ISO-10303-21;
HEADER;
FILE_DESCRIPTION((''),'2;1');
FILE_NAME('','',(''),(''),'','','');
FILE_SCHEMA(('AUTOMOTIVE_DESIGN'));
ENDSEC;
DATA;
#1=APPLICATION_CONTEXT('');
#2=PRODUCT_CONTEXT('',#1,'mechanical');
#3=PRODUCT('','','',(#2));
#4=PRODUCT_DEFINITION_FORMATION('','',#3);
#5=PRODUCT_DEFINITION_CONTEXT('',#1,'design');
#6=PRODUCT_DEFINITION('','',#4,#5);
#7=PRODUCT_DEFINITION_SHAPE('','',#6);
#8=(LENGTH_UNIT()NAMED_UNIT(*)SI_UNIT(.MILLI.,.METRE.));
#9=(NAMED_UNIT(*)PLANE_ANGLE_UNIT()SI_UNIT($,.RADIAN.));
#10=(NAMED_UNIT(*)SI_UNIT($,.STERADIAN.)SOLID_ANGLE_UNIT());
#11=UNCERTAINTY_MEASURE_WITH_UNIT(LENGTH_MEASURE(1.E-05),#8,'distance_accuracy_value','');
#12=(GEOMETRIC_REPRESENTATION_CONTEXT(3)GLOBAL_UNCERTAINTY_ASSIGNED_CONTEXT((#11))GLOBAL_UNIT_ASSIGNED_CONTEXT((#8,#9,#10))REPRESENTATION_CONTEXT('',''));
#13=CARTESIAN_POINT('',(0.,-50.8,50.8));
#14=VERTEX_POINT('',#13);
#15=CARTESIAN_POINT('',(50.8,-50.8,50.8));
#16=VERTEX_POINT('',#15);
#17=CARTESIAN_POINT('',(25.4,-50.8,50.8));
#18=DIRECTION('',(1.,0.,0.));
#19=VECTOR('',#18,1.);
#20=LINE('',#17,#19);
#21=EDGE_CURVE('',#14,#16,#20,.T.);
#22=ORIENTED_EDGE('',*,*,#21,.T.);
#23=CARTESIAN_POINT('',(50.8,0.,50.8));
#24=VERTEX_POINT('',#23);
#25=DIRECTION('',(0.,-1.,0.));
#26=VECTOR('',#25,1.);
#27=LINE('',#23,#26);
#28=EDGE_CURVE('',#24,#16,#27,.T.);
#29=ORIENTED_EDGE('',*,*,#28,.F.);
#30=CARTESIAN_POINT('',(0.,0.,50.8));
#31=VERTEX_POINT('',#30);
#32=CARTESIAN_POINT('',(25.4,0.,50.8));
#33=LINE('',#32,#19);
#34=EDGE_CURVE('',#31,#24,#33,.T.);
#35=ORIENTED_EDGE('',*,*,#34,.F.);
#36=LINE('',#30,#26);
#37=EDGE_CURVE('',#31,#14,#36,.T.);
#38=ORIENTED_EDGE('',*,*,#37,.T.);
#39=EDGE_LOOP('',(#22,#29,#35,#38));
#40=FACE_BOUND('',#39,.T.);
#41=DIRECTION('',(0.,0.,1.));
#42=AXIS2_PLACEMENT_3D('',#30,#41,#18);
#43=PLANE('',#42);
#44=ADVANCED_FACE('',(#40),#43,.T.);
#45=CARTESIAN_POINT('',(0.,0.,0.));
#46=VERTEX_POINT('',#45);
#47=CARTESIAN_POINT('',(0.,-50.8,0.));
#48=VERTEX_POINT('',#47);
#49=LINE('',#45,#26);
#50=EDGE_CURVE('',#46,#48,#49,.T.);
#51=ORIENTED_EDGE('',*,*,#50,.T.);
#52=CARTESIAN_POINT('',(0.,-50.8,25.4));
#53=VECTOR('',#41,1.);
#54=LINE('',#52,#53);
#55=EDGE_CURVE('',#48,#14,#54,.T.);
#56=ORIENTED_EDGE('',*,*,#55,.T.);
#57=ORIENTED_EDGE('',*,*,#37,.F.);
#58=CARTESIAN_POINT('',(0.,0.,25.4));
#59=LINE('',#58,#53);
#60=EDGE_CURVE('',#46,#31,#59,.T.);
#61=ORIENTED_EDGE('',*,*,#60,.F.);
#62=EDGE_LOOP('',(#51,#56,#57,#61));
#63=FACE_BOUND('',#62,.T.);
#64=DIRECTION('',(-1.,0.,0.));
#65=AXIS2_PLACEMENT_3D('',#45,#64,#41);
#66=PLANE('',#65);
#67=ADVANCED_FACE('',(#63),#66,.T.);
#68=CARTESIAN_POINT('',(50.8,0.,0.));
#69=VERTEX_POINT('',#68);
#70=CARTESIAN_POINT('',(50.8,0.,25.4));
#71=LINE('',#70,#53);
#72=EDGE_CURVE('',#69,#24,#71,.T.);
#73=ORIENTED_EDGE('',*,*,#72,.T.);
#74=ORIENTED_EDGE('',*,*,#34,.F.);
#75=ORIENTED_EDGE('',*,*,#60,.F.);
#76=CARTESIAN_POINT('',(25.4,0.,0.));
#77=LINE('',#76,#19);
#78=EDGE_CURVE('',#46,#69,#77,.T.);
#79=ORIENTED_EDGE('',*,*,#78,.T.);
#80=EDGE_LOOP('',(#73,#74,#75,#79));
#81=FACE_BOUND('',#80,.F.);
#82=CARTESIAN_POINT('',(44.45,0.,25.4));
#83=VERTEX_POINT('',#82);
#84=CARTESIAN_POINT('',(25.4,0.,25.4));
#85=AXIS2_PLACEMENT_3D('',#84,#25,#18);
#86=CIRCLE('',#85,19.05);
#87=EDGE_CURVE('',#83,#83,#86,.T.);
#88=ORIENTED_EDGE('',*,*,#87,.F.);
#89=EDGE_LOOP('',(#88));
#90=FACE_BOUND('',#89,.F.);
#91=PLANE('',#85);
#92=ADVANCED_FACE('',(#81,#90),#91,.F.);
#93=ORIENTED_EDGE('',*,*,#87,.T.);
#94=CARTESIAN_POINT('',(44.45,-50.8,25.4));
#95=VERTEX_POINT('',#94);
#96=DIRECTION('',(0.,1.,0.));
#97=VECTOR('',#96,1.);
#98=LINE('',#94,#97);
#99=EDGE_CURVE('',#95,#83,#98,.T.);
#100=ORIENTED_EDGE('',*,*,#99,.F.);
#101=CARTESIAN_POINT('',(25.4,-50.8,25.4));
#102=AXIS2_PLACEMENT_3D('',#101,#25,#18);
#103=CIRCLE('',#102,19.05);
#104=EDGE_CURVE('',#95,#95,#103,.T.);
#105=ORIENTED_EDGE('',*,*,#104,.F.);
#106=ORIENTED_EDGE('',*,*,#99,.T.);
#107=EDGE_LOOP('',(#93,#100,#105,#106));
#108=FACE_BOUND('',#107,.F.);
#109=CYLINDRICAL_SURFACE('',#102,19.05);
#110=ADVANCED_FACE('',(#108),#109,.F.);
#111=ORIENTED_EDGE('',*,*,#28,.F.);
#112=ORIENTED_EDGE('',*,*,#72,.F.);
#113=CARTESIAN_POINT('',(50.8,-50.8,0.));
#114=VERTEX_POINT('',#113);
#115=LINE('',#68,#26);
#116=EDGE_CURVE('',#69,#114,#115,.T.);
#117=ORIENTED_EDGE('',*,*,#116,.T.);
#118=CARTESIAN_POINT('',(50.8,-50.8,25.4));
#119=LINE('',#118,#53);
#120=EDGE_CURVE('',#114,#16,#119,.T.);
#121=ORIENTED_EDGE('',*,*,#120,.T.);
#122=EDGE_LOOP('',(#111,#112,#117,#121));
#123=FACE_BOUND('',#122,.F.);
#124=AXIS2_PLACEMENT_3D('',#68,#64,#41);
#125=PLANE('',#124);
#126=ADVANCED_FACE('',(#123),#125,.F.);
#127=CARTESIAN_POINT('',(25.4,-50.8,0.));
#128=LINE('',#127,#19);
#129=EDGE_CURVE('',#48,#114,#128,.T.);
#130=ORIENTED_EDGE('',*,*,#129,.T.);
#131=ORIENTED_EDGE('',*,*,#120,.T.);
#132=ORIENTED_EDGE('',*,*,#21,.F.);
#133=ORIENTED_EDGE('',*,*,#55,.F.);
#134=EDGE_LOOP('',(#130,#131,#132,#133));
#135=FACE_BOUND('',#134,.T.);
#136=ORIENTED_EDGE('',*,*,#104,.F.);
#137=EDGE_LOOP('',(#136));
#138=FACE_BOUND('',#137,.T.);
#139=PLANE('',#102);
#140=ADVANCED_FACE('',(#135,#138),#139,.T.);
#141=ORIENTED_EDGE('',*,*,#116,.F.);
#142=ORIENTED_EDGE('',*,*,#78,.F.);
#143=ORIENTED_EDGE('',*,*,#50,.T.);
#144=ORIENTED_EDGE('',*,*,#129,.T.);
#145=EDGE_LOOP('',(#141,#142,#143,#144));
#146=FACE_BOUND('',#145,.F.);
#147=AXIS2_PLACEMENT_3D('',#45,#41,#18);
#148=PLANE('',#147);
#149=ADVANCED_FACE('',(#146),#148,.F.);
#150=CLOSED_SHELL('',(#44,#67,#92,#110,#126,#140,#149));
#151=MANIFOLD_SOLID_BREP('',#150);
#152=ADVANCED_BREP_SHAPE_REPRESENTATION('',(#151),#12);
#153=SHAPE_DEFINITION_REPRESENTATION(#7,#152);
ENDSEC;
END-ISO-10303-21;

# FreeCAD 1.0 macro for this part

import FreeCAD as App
import Part
import Sketcher

V = App.Vector
Q = App.Units.Quantity

doc = App.newDocument("Part")
body = doc.addObject("PartDesign::Body", "Body")

# Sketch on XZ plane
sketch1 = doc.addObject("Sketcher::SketchObject", "Sketch")
body.addObject(sketch1)
sketch1.AttachmentSupport = (doc.XZ_Plane, [""])
sketch1.MapMode = "FlatFace"
sketch1.addGeometry([
    Part.LineSegment(V(0, 51, 0), V(0, 0, 0)),
    Part.LineSegment(V(0, 0, 0), V(51, 0, 0)),
    Part.LineSegment(V(51, 0, 0), V(51, 51, 0)),
    Part.LineSegment(V(51, 51, 0), V(0, 51, 0)),
], False)
sketch1.addConstraint([
    Sketcher.Constraint("Coincident", 0, 2, 1, 1),
    Sketcher.Constraint("Coincident", 1, 2, 2, 1),
    Sketcher.Constraint("Coincident", 2, 2, 3, 1),
    Sketcher.Constraint("Coincident", 3, 2, 0, 1),
    Sketcher.Constraint("Vertical", 0),
    Sketcher.Constraint("Horizontal", 1),
    Sketcher.Constraint("Vertical", 2),
    Sketcher.Constraint("Horizontal", 3),
    Sketcher.Constraint("Coincident", 0, 2, -1, 1),
    Sketcher.Constraint("Equal", 3, 0),
    Sketcher.Constraint("DistanceX", 1, 1, 1, 2, Q("2 in")),
])
pad1 = doc.addObject("PartDesign::Pad", "Pad")
body.addObject(pad1)
pad1.Profile = sketch1
pad1.Length = Q("2 in")

# Sketch on XZ plane
sketch2 = doc.addObject("Sketcher::SketchObject", "Sketch001")
body.addObject(sketch2)
sketch2.AttachmentSupport = (doc.XZ_Plane, [""])
sketch2.MapMode = "FlatFace"
sketch2.AttachmentOffset = App.Placement(V(0, 0, 2 * 25.4), App.Rotation())
sketch2.addGeometry(Part.Circle(V(24, 24, 0), V(0, 0, 1), 16), False)
sketch2.addConstraint([
    Sketcher.Constraint("Diameter", 0, 31.51001),
    Sketcher.Constraint("DistanceY", -1, 1, 0, 3, 24.344128),
    Sketcher.Constraint("DistanceX", -1, 1, 0, 3, 24.034012),
])
pocket1 = doc.addObject("PartDesign::Pocket", "Pocket")
body.addObject(pocket1)
pocket1.Profile = sketch2
pocket1.Length = Q("2 in")
pocket1.Reversed = True

# Sketch on XZ plane
sketch3 = doc.addObject("Sketcher::SketchObject", "Sketch002")
body.addObject(sketch3)
sketch3.AttachmentSupport = (doc.XZ_Plane, [""])
sketch3.MapMode = "FlatFace"
sketch3.AttachmentOffset = App.Placement(V(0, 0, 2 * 25.4), App.Rotation())
sketch3.addGeometry(Part.Circle(V(25, 25, 0), V(0, 0, 1), 19), False)
sketch3.addConstraint([
    Sketcher.Constraint("Diameter", 0, Q("1.5 in")),
    Sketcher.Constraint("DistanceX", -1, 1, 0, 3, Q("1 in")),
    Sketcher.Constraint("DistanceY", -1, 1, 0, 3, Q("1 in")),
])
pocket2 = doc.addObject("PartDesign::Pocket", "Pocket001")
body.addObject(pocket2)
pocket2.Profile = sketch3
pocket2.Length = Q("2 in")

doc.recompute()
